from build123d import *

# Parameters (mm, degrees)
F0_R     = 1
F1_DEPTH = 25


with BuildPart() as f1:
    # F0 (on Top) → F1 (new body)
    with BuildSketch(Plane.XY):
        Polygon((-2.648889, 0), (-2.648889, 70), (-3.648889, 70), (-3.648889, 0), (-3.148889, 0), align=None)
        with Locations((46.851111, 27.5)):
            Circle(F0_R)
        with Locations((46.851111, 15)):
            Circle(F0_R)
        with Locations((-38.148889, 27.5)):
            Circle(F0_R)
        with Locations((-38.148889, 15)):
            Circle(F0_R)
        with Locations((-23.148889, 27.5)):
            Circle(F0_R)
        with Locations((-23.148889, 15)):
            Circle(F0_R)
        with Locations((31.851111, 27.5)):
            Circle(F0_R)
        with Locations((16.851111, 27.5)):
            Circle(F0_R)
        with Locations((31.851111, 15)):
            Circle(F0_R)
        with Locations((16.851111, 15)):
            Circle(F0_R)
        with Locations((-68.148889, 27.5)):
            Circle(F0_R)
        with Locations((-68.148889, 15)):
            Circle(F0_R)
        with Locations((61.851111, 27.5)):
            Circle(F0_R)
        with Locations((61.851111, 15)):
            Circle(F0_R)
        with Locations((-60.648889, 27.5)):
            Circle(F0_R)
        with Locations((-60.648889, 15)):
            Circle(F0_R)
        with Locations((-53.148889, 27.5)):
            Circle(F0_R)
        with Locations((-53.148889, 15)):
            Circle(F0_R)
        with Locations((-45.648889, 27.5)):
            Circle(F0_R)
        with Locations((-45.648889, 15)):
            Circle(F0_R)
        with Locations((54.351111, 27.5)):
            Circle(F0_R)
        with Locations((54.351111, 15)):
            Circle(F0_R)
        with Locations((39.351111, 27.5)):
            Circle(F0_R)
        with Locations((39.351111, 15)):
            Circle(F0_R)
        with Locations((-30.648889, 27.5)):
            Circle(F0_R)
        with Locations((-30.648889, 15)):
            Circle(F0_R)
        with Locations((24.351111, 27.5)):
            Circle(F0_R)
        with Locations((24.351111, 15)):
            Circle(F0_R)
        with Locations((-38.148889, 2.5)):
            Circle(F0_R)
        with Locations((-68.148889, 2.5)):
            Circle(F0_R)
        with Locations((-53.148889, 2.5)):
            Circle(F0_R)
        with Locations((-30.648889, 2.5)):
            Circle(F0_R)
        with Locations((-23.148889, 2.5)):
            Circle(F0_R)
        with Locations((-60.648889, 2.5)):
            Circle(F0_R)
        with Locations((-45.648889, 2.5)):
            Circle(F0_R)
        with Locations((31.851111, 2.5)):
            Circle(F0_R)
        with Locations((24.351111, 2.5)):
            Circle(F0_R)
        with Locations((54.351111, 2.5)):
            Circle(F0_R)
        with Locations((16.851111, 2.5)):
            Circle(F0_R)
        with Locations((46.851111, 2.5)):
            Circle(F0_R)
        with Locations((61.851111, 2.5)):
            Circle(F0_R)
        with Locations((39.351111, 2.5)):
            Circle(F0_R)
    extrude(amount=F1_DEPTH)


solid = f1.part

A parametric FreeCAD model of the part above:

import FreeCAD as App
import Part
import Sketcher
from FreeCAD import Vector

doc = App.newDocument("Part")
params = doc.addObject("Spreadsheet::Sheet", "Params")
for row, (alias, value) in enumerate([
    ("sketch1_diameter", "2 mm"),
    ("sketch1_width", "1 mm"),
    ("sketch1_height", "70 mm"),
    ("pad1_length", "25 mm"),
], start=1):
    params.set(f"A{row}", alias)
    params.set(f"B{row}", "=" + value)
    params.setAlias(f"B{row}", alias)

body = doc.addObject("PartDesign::Body", "Body")
body.AllowCompound = True

# Sketch on XY plane
sketch1 = body.newObject("Sketcher::SketchObject", "Sketch")
sketch1.AttachmentSupport = (doc.getObject("XY_Plane"), [""])
sketch1.MapMode = "FlatFace"
sketch1.addGeometry(Part.LineSegment(Vector(-2.648889, 0, 0), Vector(-2.648889, 70, 0)), False)
sketch1.addGeometry(Part.LineSegment(Vector(-2.648889, 70, 0), Vector(-3.648889, 70, 0)), False)
sketch1.addGeometry(Part.LineSegment(Vector(-3.648889, 70, 0), Vector(-3.648889, 0, 0)), False)
sketch1.addGeometry(Part.LineSegment(Vector(-3.648889, 0, 0), Vector(-2.648889, 0, 0)), False)
sketch1.addGeometry(Part.Circle(Vector(46.851111, 27.5, 0), Vector(0, 0, 1), 1), False)
sketch1.addGeometry(Part.Circle(Vector(46.851111, 15, 0), Vector(0, 0, 1), 1), False)
sketch1.addGeometry(Part.Circle(Vector(-38.148889, 27.5, 0), Vector(0, 0, 1), 1), False)
sketch1.addGeometry(Part.Circle(Vector(-38.148889, 15, 0), Vector(0, 0, 1), 1), False)
sketch1.addGeometry(Part.Circle(Vector(-23.148889, 27.5, 0), Vector(0, 0, 1), 1), False)
sketch1.addGeometry(Part.Circle(Vector(-23.148889, 15, 0), Vector(0, 0, 1), 1), False)
sketch1.addGeometry(Part.Circle(Vector(31.851111, 27.5, 0), Vector(0, 0, 1), 1), False)
sketch1.addGeometry(Part.Circle(Vector(16.851111, 27.5, 0), Vector(0, 0, 1), 1), False)
sketch1.addGeometry(Part.Circle(Vector(31.851111, 15, 0), Vector(0, 0, 1), 1), False)
sketch1.addGeometry(Part.Circle(Vector(16.851111, 15, 0), Vector(0, 0, 1), 1), False)
sketch1.addGeometry(Part.Circle(Vector(-68.148889, 27.5, 0), Vector(0, 0, 1), 1), False)
sketch1.addGeometry(Part.Circle(Vector(-68.148889, 15, 0), Vector(0, 0, 1), 1), False)
sketch1.addGeometry(Part.Circle(Vector(61.851111, 27.5, 0), Vector(0, 0, 1), 1), False)
sketch1.addGeometry(Part.Circle(Vector(61.851111, 15, 0), Vector(0, 0, 1), 1), False)
sketch1.addGeometry(Part.Circle(Vector(-60.648889, 27.5, 0), Vector(0, 0, 1), 1), False)
sketch1.addGeometry(Part.Circle(Vector(-60.648889, 15, 0), Vector(0, 0, 1), 1), False)
sketch1.addGeometry(Part.Circle(Vector(-53.148889, 27.5, 0), Vector(0, 0, 1), 1), False)
sketch1.addGeometry(Part.Circle(Vector(-53.148889, 15, 0), Vector(0, 0, 1), 1), False)
sketch1.addGeometry(Part.Circle(Vector(-45.648889, 27.5, 0), Vector(0, 0, 1), 1), False)
sketch1.addGeometry(Part.Circle(Vector(-45.648889, 15, 0), Vector(0, 0, 1), 1), False)
sketch1.addGeometry(Part.Circle(Vector(54.351111, 27.5, 0), Vector(0, 0, 1), 1), False)
sketch1.addGeometry(Part.Circle(Vector(54.351111, 15, 0), Vector(0, 0, 1), 1), False)
sketch1.addGeometry(Part.Circle(Vector(39.351111, 27.5, 0), Vector(0, 0, 1), 1), False)
sketch1.addGeometry(Part.Circle(Vector(39.351111, 15, 0), Vector(0, 0, 1), 1), False)
sketch1.addGeometry(Part.Circle(Vector(-30.648889, 27.5, 0), Vector(0, 0, 1), 1), False)
sketch1.addGeometry(Part.Circle(Vector(-30.648889, 15, 0), Vector(0, 0, 1), 1), False)
sketch1.addGeometry(Part.Circle(Vector(24.351111, 27.5, 0), Vector(0, 0, 1), 1), False)
sketch1.addGeometry(Part.Circle(Vector(24.351111, 15, 0), Vector(0, 0, 1), 1), False)
sketch1.addGeometry(Part.Circle(Vector(-38.148889, 2.5, 0), Vector(0, 0, 1), 1), False)
sketch1.addGeometry(Part.Circle(Vector(-68.148889, 2.5, 0), Vector(0, 0, 1), 1), False)
sketch1.addGeometry(Part.Circle(Vector(-53.148889, 2.5, 0), Vector(0, 0, 1), 1), False)
sketch1.addGeometry(Part.Circle(Vector(-30.648889, 2.5, 0), Vector(0, 0, 1), 1), False)
sketch1.addGeometry(Part.Circle(Vector(-23.148889, 2.5, 0), Vector(0, 0, 1), 1), False)
sketch1.addGeometry(Part.Circle(Vector(-60.648889, 2.5, 0), Vector(0, 0, 1), 1), False)
sketch1.addGeometry(Part.Circle(Vector(-45.648889, 2.5, 0), Vector(0, 0, 1), 1), False)
sketch1.addGeometry(Part.Circle(Vector(31.851111, 2.5, 0), Vector(0, 0, 1), 1), False)
sketch1.addGeometry(Part.Circle(Vector(24.351111, 2.5, 0), Vector(0, 0, 1), 1), False)
sketch1.addGeometry(Part.Circle(Vector(54.351111, 2.5, 0), Vector(0, 0, 1), 1), False)
sketch1.addGeometry(Part.Circle(Vector(16.851111, 2.5, 0), Vector(0, 0, 1), 1), False)
sketch1.addGeometry(Part.Circle(Vector(46.851111, 2.5, 0), Vector(0, 0, 1), 1), False)
sketch1.addGeometry(Part.Circle(Vector(61.851111, 2.5, 0), Vector(0, 0, 1), 1), False)
sketch1.addGeometry(Part.Circle(Vector(39.351111, 2.5, 0), Vector(0, 0, 1), 1), False)
sketch1.addConstraint(Sketcher.Constraint("Coincident", 0, 2, 1, 1))
sketch1.addConstraint(Sketcher.Constraint("Coincident", 1, 2, 2, 1))
sketch1.addConstraint(Sketcher.Constraint("Coincident", 2, 2, 3, 1))
sketch1.addConstraint(Sketcher.Constraint("Coincident", 3, 2, 0, 1))
sketch1.addConstraint(Sketcher.Constraint("Vertical", 0))
sketch1.addConstraint(Sketcher.Constraint("Horizontal", 1))
sketch1.addConstraint(Sketcher.Constraint("Vertical", 2))
sketch1.addConstraint(Sketcher.Constraint("Horizontal", 3))
sketch1.addConstraint(Sketcher.Constraint("Equal", 4, 5))
sketch1.addConstraint(Sketcher.Constraint("Equal", 5, 6))
sketch1.addConstraint(Sketcher.Constraint("Equal", 6, 7))
sketch1.addConstraint(Sketcher.Constraint("Equal", 7, 8))
sketch1.addConstraint(Sketcher.Constraint("Equal", 8, 9))
sketch1.addConstraint(Sketcher.Constraint("Equal", 9, 10))
sketch1.addConstraint(Sketcher.Constraint("Equal", 10, 11))
sketch1.addConstraint(Sketcher.Constraint("Equal", 11, 12))
sketch1.addConstraint(Sketcher.Constraint("Equal", 12, 13))
sketch1.addConstraint(Sketcher.Constraint("Equal", 13, 14))
sketch1.addConstraint(Sketcher.Constraint("Equal", 14, 15))
sketch1.addConstraint(Sketcher.Constraint("Equal", 15, 16))
sketch1.addConstraint(Sketcher.Constraint("Equal", 16, 17))
sketch1.addConstraint(Sketcher.Constraint("Equal", 17, 18))
sketch1.addConstraint(Sketcher.Constraint("Equal", 18, 19))
sketch1.addConstraint(Sketcher.Constraint("Equal", 19, 20))
sketch1.addConstraint(Sketcher.Constraint("Equal", 20, 21))
sketch1.addConstraint(Sketcher.Constraint("Equal", 21, 22))
sketch1.addConstraint(Sketcher.Constraint("Equal", 22, 23))
sketch1.addConstraint(Sketcher.Constraint("Equal", 23, 24))
sketch1.addConstraint(Sketcher.Constraint("Equal", 24, 25))
sketch1.addConstraint(Sketcher.Constraint("Equal", 25, 26))
sketch1.addConstraint(Sketcher.Constraint("Equal", 26, 27))
sketch1.addConstraint(Sketcher.Constraint("Equal", 27, 28))
sketch1.addConstraint(Sketcher.Constraint("Equal", 28, 29))
sketch1.addConstraint(Sketcher.Constraint("Equal", 29, 30))
sketch1.addConstraint(Sketcher.Constraint("Equal", 30, 31))
sketch1.addConstraint(Sketcher.Constraint("Equal", 31, 32))
sketch1.addConstraint(Sketcher.Constraint("Equal", 32, 33))
sketch1.addConstraint(Sketcher.Constraint("Equal", 33, 34))
sketch1.addConstraint(Sketcher.Constraint("Equal", 34, 35))
sketch1.addConstraint(Sketcher.Constraint("Equal", 35, 36))
sketch1.addConstraint(Sketcher.Constraint("Equal", 36, 37))
sketch1.addConstraint(Sketcher.Constraint("Equal", 37, 38))
sketch1.addConstraint(Sketcher.Constraint("Equal", 38, 39))
sketch1.addConstraint(Sketcher.Constraint("Equal", 39, 40))
sketch1.addConstraint(Sketcher.Constraint("Equal", 40, 41))
sketch1.addConstraint(Sketcher.Constraint("Equal", 41, 42))
sketch1.addConstraint(Sketcher.Constraint("Equal", 42, 43))
sketch1.addConstraint(Sketcher.Constraint("Equal", 43, 44))
sketch1.addConstraint(Sketcher.Constraint("Equal", 44, 45))
sketch1.addConstraint(Sketcher.Constraint("PointOnObject", 2, 2, -1))
sketch1.addConstraint(Sketcher.Constraint("Horizontal", 4, 3, 6, 3))
sketch1.addConstraint(Sketcher.Constraint("Horizontal", 5, 3, 7, 3))
sketch1.addConstraint(Sketcher.Constraint("Horizontal", 6, 3, 8, 3))
sketch1.addConstraint(Sketcher.Constraint("Horizontal", 7, 3, 9, 3))
sketch1.addConstraint(Sketcher.Constraint("Horizontal", 8, 3, 10, 3))
sketch1.addConstraint(Sketcher.Constraint("Horizontal", 10, 3, 11, 3))
sketch1.addConstraint(Sketcher.Constraint("Horizontal", 9, 3, 12, 3))
sketch1.addConstraint(Sketcher.Constraint("Horizontal", 12, 3, 13, 3))
sketch1.addConstraint(Sketcher.Constraint("Horizontal", 11, 3, 14, 3))
sketch1.addConstraint(Sketcher.Constraint("Horizontal", 13, 3, 15, 3))
sketch1.addConstraint(Sketcher.Constraint("Horizontal", 14, 3, 16, 3))
sketch1.addConstraint(Sketcher.Constraint("Horizontal", 15, 3, 17, 3))
sketch1.addConstraint(Sketcher.Constraint("Horizontal", 16, 3, 18, 3))
sketch1.addConstraint(Sketcher.Constraint("Horizontal", 17, 3, 19, 3))
sketch1.addConstraint(Sketcher.Constraint("Horizontal", 18, 3, 20, 3))
sketch1.addConstraint(Sketcher.Constraint("Horizontal", 19, 3, 21, 3))
sketch1.addConstraint(Sketcher.Constraint("Horizontal", 20, 3, 22, 3))
sketch1.addConstraint(Sketcher.Constraint("Horizontal", 21, 3, 23, 3))
sketch1.addConstraint(Sketcher.Constraint("Horizontal", 22, 3, 24, 3))
sketch1.addConstraint(Sketcher.Constraint("Horizontal", 23, 3, 25, 3))
sketch1.addConstraint(Sketcher.Constraint("Horizontal", 24, 3, 26, 3))
sketch1.addConstraint(Sketcher.Constraint("Horizontal", 25, 3, 27, 3))
sketch1.addConstraint(Sketcher.Constraint("Horizontal", 26, 3, 28, 3))
sketch1.addConstraint(Sketcher.Constraint("Horizontal", 27, 3, 29, 3))
sketch1.addConstraint(Sketcher.Constraint("Horizontal", 28, 3, 30, 3))
sketch1.addConstraint(Sketcher.Constraint("Horizontal", 29, 3, 31, 3))
sketch1.addConstraint(Sketcher.Constraint("Horizontal", 32, 3, 33, 3))
sketch1.addConstraint(Sketcher.Constraint("Horizontal", 33, 3, 34, 3))
sketch1.addConstraint(Sketcher.Constraint("Horizontal", 34, 3, 35, 3))
sketch1.addConstraint(Sketcher.Constraint("Horizontal", 35, 3, 36, 3))
sketch1.addConstraint(Sketcher.Constraint("Horizontal", 36, 3, 37, 3))
sketch1.addConstraint(Sketcher.Constraint("Horizontal", 37, 3, 38, 3))
sketch1.addConstraint(Sketcher.Constraint("Horizontal", 38, 3, 39, 3))
sketch1.addConstraint(Sketcher.Constraint("Horizontal", 39, 3, 40, 3))
sketch1.addConstraint(Sketcher.Constraint("Horizontal", 40, 3, 41, 3))
sketch1.addConstraint(Sketcher.Constraint("Horizontal", 41, 3, 42, 3))
sketch1.addConstraint(Sketcher.Constraint("Horizontal", 42, 3, 43, 3))
sketch1.addConstraint(Sketcher.Constraint("Horizontal", 43, 3, 44, 3))
sketch1.addConstraint(Sketcher.Constraint("Horizontal", 44, 3, 45, 3))
sketch1.addConstraint(Sketcher.Constraint("Vertical", 4, 3, 5, 3))
sketch1.addConstraint(Sketcher.Constraint("Vertical", 6, 3, 7, 3))
sketch1.addConstraint(Sketcher.Constraint("Vertical", 8, 3, 9, 3))
sketch1.addConstraint(Sketcher.Constraint("Vertical", 10, 3, 12, 3))
sketch1.addConstraint(Sketcher.Constraint("Vertical", 11, 3, 13, 3))
sketch1.addConstraint(Sketcher.Constraint("Vertical", 14, 3, 15, 3))
sketch1.addConstraint(Sketcher.Constraint("Vertical", 16, 3, 17, 3))
sketch1.addConstraint(Sketcher.Constraint("Vertical", 18, 3, 19, 3))
sketch1.addConstraint(Sketcher.Constraint("Vertical", 20, 3, 21, 3))
sketch1.addConstraint(Sketcher.Constraint("Vertical", 22, 3, 23, 3))
sketch1.addConstraint(Sketcher.Constraint("Vertical", 24, 3, 25, 3))
sketch1.addConstraint(Sketcher.Constraint("Vertical", 26, 3, 27, 3))
sketch1.addConstraint(Sketcher.Constraint("Vertical", 28, 3, 29, 3))
sketch1.addConstraint(Sketcher.Constraint("Vertical", 30, 3, 31, 3))
sketch1.addConstraint(Sketcher.Constraint("Vertical", 7, 3, 32, 3))
sketch1.addConstraint(Sketcher.Constraint("Vertical", 15, 3, 33, 3))
sketch1.addConstraint(Sketcher.Constraint("Vertical", 21, 3, 34, 3))
sketch1.addConstraint(Sketcher.Constraint("Vertical", 29, 3, 35, 3))
sketch1.addConstraint(Sketcher.Constraint("Vertical", 9, 3, 36, 3))
sketch1.addConstraint(Sketcher.Constraint("Vertical", 19, 3, 37, 3))
sketch1.addConstraint(Sketcher.Constraint("Vertical", 23, 3, 38, 3))
sketch1.addConstraint(Sketcher.Constraint("Vertical", 12, 3, 39, 3))
sketch1.addConstraint(Sketcher.Constraint("Vertical", 31, 3, 40, 3))
sketch1.addConstraint(Sketcher.Constraint("Vertical", 25, 3, 41, 3))
sketch1.addConstraint(Sketcher.Constraint("Vertical", 13, 3, 42, 3))
sketch1.addConstraint(Sketcher.Constraint("Vertical", 5, 3, 43, 3))
sketch1.addConstraint(Sketcher.Constraint("Vertical", 17, 3, 44, 3))
sketch1.addConstraint(Sketcher.Constraint("Vertical", 27, 3, 45, 3))
sketch1.addConstraint(Sketcher.Constraint("Diameter", 4, 2.0))
sketch1.addConstraint(Sketcher.Constraint("DistanceX", 1, 2, 1, 1, 1.0))
sketch1.addConstraint(Sketcher.Constraint("DistanceY", 0, 1, 0, 2, 70.0))
sketch1.addConstraint(Sketcher.Constraint("DistanceY", -1, 1, 5, 3, 15.0))
sketch1.addConstraint(Sketcher.Constraint("DistanceX", 6, 3, 4, 3, 85.0))
sketch1.addConstraint(Sketcher.Constraint("DistanceX", 6, 3, 8, 3, 15.0))
sketch1.addConstraint(Sketcher.Constraint("DistanceX", 10, 3, 4, 3, 15.0))
sketch1.addConstraint(Sketcher.Constraint("DistanceX", 11, 3, 10, 3, 15.0))
sketch1.addConstraint(Sketcher.Constraint("DistanceX", 14, 3, 6, 3, 30.0))
sketch1.addConstraint(Sketcher.Constraint("DistanceX", 4, 3, 16, 3, 15.0))
sketch1.addConstraint(Sketcher.Constraint("DistanceX", 20, 3, 6, 3, 15.0))
sketch1.addConstraint(Sketcher.Constraint("DistanceX", 18, 3, 22, 3, 15.0))
sketch1.addConstraint(Sketcher.Constraint("DistanceX", 26, 3, 24, 3, 15.0))
sketch1.addConstraint(Sketcher.Constraint("DistanceX", 22, 3, 28, 3, 15.0))
sketch1.addConstraint(Sketcher.Constraint("DistanceX", 30, 3, 26, 3, 15.0))
sketch1.addConstraint(Sketcher.Constraint("DistanceY", 33, 3, 14, 3, 25.0))
sketch1.addConstraint(Sketcher.Constraint("DistanceX", 0, 2, 30, 3, 27.0))
sketch1.addConstraint(Sketcher.Constraint("DistanceX", 28, 3, 0, 2, 28.0))
sketch1.addConstraint(Sketcher.Constraint("DistanceY", -1, 1, 4, 3, 27.5))
sketch1.addConstraint(Sketcher.Constraint("DistanceX", 14, 3, 18, 3, 7.5))
sketch1.addConstraint(Sketcher.Constraint("DistanceX", -1, 1, 4, 3, 46.851111))
sketch1.setExpression("Constraints[117]", "Params.sketch1_diameter")
sketch1.setExpression("Constraints[118]", "Params.sketch1_width")
sketch1.setExpression("Constraints[119]", "Params.sketch1_height")
pad1 = body.newObject("PartDesign::Pad", "Pad")
pad1.Profile = sketch1
pad1.setExpression("Length", "Params.pad1_length")

doc.recompute()
